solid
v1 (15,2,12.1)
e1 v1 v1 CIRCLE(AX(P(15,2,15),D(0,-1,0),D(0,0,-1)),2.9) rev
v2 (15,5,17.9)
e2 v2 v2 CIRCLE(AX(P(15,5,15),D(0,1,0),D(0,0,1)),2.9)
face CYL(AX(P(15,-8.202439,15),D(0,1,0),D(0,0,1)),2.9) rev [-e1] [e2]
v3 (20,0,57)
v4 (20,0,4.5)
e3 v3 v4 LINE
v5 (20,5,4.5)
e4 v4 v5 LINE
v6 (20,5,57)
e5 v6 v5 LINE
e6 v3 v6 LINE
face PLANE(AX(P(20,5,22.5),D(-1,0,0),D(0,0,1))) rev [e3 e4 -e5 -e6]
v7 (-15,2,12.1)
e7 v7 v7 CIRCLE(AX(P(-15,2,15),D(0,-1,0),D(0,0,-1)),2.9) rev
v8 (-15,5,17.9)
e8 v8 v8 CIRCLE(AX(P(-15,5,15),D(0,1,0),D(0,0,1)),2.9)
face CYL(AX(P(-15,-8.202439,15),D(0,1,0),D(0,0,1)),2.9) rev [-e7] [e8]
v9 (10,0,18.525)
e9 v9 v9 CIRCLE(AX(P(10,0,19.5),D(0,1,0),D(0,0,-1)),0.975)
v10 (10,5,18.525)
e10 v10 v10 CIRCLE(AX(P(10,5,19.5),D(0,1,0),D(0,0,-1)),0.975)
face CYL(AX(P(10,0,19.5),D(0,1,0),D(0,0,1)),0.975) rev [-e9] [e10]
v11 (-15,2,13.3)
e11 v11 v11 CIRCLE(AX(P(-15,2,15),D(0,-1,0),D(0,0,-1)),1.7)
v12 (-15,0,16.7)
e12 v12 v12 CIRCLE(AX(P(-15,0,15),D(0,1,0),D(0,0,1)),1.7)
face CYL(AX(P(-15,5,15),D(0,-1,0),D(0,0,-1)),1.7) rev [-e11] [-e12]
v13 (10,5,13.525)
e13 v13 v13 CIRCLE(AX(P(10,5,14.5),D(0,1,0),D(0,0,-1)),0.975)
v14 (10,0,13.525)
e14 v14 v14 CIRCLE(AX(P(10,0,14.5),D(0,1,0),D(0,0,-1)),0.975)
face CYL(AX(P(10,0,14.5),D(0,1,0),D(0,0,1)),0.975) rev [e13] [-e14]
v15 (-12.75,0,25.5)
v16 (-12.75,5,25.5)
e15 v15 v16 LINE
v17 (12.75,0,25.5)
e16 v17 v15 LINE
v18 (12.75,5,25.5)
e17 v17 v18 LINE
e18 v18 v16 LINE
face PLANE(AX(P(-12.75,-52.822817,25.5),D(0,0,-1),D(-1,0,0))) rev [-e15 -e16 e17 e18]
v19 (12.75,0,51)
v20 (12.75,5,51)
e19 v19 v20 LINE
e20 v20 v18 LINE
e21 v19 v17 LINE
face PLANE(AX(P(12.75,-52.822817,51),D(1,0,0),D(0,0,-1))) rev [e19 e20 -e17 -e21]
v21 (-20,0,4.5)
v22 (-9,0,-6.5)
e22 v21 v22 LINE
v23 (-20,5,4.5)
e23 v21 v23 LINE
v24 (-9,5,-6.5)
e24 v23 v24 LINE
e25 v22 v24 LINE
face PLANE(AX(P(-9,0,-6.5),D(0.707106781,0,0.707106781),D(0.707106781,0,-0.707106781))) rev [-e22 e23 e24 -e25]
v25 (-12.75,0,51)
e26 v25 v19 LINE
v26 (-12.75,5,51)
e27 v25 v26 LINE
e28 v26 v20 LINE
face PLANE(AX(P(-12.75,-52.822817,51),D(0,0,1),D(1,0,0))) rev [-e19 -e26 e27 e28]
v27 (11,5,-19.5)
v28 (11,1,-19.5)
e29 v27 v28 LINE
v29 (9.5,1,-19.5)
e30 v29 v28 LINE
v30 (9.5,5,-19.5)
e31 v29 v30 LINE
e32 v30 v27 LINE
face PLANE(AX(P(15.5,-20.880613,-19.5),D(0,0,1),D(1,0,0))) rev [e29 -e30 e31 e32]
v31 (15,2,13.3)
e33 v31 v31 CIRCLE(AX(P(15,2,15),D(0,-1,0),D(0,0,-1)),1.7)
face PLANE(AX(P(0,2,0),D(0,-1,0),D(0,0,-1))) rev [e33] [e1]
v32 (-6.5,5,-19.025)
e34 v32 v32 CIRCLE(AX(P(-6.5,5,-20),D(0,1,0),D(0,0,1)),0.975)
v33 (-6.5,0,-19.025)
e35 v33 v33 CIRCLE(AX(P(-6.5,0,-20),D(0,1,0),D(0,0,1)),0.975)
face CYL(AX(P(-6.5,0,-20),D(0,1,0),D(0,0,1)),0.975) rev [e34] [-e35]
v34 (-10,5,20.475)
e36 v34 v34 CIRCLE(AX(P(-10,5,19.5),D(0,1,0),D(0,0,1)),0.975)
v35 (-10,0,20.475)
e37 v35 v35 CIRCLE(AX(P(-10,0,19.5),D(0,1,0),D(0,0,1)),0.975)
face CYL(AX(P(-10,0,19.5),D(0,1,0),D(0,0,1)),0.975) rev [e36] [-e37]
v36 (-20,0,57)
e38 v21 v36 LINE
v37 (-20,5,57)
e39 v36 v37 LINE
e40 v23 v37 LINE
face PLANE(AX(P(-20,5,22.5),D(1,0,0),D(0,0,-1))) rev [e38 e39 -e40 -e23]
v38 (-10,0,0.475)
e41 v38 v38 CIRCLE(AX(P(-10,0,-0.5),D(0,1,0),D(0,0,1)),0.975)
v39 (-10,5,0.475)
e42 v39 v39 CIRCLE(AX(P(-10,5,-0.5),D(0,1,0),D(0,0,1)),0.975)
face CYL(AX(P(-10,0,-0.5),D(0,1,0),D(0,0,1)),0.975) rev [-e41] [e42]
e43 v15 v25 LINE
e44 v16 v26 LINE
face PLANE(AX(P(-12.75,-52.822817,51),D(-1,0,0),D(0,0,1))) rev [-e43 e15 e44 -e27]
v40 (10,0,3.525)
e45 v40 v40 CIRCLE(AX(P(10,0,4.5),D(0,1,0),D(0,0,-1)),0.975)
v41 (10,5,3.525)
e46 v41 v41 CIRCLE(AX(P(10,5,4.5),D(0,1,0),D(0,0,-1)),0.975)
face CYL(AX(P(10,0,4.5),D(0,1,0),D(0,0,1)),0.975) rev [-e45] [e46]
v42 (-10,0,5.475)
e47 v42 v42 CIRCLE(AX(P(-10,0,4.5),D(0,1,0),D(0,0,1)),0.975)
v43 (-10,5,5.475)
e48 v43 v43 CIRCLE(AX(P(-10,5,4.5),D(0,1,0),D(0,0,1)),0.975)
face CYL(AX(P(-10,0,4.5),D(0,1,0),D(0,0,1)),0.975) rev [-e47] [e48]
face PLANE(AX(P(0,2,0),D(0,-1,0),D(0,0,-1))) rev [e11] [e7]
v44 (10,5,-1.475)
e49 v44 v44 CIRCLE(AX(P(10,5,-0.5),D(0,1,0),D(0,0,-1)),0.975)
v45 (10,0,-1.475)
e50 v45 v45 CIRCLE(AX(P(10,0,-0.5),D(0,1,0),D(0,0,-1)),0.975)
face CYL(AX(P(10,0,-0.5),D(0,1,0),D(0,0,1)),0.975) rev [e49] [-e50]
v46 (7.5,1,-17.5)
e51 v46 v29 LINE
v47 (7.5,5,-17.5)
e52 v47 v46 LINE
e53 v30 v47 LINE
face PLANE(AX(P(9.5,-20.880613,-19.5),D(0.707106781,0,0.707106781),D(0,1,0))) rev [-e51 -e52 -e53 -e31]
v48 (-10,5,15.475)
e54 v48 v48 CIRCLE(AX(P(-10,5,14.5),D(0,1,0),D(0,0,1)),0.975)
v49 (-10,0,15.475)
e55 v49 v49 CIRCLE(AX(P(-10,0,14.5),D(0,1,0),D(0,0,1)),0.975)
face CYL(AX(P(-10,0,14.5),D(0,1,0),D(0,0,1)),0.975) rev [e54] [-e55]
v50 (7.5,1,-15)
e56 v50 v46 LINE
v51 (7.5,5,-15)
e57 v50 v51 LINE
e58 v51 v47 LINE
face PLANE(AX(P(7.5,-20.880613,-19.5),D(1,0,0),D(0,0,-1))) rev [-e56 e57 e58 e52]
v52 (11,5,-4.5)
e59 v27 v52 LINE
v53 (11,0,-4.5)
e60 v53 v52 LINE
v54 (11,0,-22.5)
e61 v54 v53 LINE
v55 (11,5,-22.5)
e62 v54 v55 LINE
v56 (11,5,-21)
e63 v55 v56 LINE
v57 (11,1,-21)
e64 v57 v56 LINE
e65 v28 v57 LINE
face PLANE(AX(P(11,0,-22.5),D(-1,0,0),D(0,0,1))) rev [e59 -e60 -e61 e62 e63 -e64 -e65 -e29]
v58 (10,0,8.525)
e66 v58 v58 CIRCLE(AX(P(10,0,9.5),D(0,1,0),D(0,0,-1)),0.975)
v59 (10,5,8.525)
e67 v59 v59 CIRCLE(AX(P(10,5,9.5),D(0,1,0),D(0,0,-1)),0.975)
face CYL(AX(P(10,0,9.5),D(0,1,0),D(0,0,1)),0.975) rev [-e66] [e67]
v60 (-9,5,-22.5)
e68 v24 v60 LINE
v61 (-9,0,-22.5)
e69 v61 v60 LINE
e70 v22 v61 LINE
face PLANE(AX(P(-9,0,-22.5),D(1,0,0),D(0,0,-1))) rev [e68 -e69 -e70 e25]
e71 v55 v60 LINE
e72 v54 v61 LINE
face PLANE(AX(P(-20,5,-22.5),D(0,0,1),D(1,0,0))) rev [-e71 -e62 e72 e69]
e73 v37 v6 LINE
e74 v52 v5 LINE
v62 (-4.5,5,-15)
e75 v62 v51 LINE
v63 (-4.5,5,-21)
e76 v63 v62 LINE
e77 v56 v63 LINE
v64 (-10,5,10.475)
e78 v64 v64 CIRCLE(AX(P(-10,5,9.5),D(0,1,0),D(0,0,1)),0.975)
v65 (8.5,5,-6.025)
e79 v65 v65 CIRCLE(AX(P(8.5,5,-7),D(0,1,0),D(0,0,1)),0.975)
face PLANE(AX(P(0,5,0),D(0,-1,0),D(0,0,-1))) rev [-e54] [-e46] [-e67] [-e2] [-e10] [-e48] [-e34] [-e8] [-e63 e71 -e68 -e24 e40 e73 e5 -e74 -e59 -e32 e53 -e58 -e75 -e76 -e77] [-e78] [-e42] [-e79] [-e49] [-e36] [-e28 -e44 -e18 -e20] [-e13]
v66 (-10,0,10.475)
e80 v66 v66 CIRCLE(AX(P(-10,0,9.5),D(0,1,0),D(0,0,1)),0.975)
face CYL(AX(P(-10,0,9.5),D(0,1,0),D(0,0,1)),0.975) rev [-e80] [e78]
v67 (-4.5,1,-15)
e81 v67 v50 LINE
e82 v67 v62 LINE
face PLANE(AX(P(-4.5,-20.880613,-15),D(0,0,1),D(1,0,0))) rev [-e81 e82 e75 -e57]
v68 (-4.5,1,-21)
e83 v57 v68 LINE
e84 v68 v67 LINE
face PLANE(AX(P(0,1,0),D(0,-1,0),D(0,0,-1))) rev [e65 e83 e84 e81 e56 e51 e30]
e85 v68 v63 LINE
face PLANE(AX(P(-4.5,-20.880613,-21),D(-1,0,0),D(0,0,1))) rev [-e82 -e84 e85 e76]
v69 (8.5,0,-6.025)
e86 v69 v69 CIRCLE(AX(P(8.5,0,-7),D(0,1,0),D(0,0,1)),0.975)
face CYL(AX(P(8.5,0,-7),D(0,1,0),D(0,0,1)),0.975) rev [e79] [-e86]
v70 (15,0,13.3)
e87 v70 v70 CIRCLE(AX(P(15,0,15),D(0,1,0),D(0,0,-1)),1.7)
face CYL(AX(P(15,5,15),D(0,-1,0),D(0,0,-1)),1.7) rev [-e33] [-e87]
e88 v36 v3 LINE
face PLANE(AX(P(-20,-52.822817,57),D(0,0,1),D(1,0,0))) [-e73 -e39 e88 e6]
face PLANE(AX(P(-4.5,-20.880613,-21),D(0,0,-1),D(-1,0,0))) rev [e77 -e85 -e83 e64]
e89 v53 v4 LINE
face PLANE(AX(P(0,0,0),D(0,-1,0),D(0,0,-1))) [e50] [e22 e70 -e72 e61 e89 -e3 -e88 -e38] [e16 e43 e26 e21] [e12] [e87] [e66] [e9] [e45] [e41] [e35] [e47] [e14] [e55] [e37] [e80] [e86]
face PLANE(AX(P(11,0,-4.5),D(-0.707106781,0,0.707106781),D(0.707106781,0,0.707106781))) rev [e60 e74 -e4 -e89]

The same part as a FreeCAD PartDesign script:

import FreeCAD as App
import Part
import Sketcher

V = App.Vector


def edges_at(feature, points):
    """Names of the edges that pass closest to the given points."""
    edges = feature.Shape.Edges
    near = lambda p: min(range(len(edges)), key=lambda i: edges[i].distToShape(Part.Vertex(*p))[0])
    return sorted({f"Edge{near(p) + 1}" for p in points})


def add_polygon(sketch, points):
    """Adds a closed chain of lines whose ends are joined by coincident constraints."""
    first, n = sketch.GeometryCount, len(points)
    for a, b in zip(points, points[1:] + points[:1]):
        sketch.addGeometry(Part.LineSegment(App.Vector(*a, 0), App.Vector(*b, 0)), False)
    for i in range(n):
        sketch.addConstraint(Sketcher.Constraint("Coincident", first + i, 2, first + (i + 1) % n, 1))

doc = App.newDocument("Part")
params = doc.addObject("Spreadsheet::Sheet", "Params")
for row, (alias, value) in enumerate([
    ("sketch1_diameter", "3.4 mm"),
    ("sketch1_width", "40 mm"),
    ("sketch1_height", "45 mm"),
    ("pad1_length", "5 mm"),
    ("sketch2_diameter", "5.8 mm"),
    ("pocket1_length", "3 mm"),
    ("sketch3_diameter", "1.95 mm"),
    ("sketch4_diameter", "1.95 mm"),
    ("linearpattern_pitch", "5 mm"),
    ("sketch5_width", "20 mm"),
    ("sketch5_width2", "12 mm"),
    ("sketch5_height", "6 mm"),
    ("sketch5_height2", "4.5 mm"),
    ("pocket4_length", "4 mm"),
    ("fillet_radius", "3 mm"),
    ("chamfer_size", "2 mm"),
    ("sketch6_width", "11 mm"),
    ("sketch6_width2", "9 mm"),
    ("sketch6_height", "16 mm"),
    ("sketch6_height2", "27 mm"),
    ("sketch7_width", "40 mm"),
    ("sketch7_width2", "25.5 mm"),
    ("sketch7_height", "34.5 mm"),
    ("pad2_length", "5 mm"),
], start=1):
    params.set(f"A{row}", alias)
    params.set(f"B{row}", "=" + value)
    params.setAlias(f"B{row}", alias)

body = doc.addObject("PartDesign::Body", "Body")

# Sketch on XZ plane
sketch1 = doc.addObject("Sketcher::SketchObject", "Sketch")
body.addObject(sketch1)
sketch1.AttachmentSupport = (doc.XZ_Plane, [""])
sketch1.MapMode = "FlatFace"
add_polygon(sketch1, [(-20, -22.5), (-20, 22.5), (20, 22.5), (20, -22.5)])  # lines 0-3
sketch1.addGeometry(Part.Circle(V(-15, 15, 0), V(0, 0, 1), 1.7), False)  # 4
sketch1.addGeometry(Part.Circle(V(15, 15, 0), V(0, 0, 1), 1.7), False)  # 5
sketch1.addGeometry(Part.Circle(V(-15, -15, 0), V(0, 0, 1), 1.7), False)  # 6
sketch1.addGeometry(Part.Circle(V(15, -15, 0), V(0, 0, 1), 1.7), False)  # 7
sketch1.addConstraint([
    Sketcher.Constraint("Vertical", 0),
    Sketcher.Constraint("Horizontal", 1),
    Sketcher.Constraint("Vertical", 2),
    Sketcher.Constraint("Horizontal", 3),
    Sketcher.Constraint("Equal", 4, 5),
    Sketcher.Constraint("Equal", 5, 6),
    Sketcher.Constraint("Equal", 6, 7),
    Sketcher.Constraint("Symmetric", 5, 3, 6, 3, -1, 1),
    Sketcher.Constraint("Symmetric", 4, 3, 7, 3, -1, 1),
    Sketcher.Constraint("Symmetric", 0, 2, 2, 2, -1, 1),
    Sketcher.Constraint("Symmetric", 4, 3, 5, 3, -2),
    Sketcher.Constraint("Diameter", 4, 3.4),
    Sketcher.Constraint("DistanceX", 1, 1, 1, 2, 40.0),
    Sketcher.Constraint("DistanceY", 0, 1, 0, 2, 45.0),
    Sketcher.Constraint("DistanceX", 4, 3, -1, 1, 15.0),
    Sketcher.Constraint("DistanceY", -1, 1, 4, 3, 15.0),
])
sketch1.setExpression("Constraints[15]", "Params.sketch1_diameter")
sketch1.setExpression("Constraints[16]", "Params.sketch1_width")
sketch1.setExpression("Constraints[17]", "Params.sketch1_height")
pad1 = doc.addObject("PartDesign::Pad", "Pad")
body.addObject(pad1)
pad1.Profile = sketch1
pad1.setExpression("Length", "Params.pad1_length")
pad1.Reversed = True

# Sketch on XZ plane
sketch2 = doc.addObject("Sketcher::SketchObject", "Sketch001")
body.addObject(sketch2)
sketch2.AttachmentSupport = (doc.XZ_Plane, [""])
sketch2.MapMode = "FlatFace"
sketch2.AttachmentOffset = App.Placement(V(0, 0, -5), App.Rotation())
sketch2.addGeometry([
    Part.Circle(V(-15, -15, 0), V(0, 0, 1), 2.9),
    Part.Circle(V(15, -15, 0), V(0, 0, 1), 2.9),
    Part.Circle(V(-15, 15, 0), V(0, 0, 1), 2.9),
    Part.Circle(V(15, 15, 0), V(0, 0, 1), 2.9),
], False)
sketch2.addConstraint([
    Sketcher.Constraint("Equal", 0, 1),
    Sketcher.Constraint("Equal", 1, 2),
    Sketcher.Constraint("Equal", 2, 3),
    Sketcher.Constraint("Symmetric", 1, 3, 2, 3, -1, 1),
    Sketcher.Constraint("Symmetric", 0, 3, 3, 3, -1, 1),
    Sketcher.Constraint("Symmetric", 0, 3, 1, 3, -2),
    Sketcher.Constraint("Diameter", 0, 5.8),
    Sketcher.Constraint("DistanceX", 0, 3, -1, 1, 15.0),
    Sketcher.Constraint("DistanceY", 0, 3, -1, 1, 15.0),
])
sketch2.setExpression("Constraints[6]", "Params.sketch2_diameter")
pocket1 = doc.addObject("PartDesign::Pocket", "Pocket")
body.addObject(pocket1)
pocket1.Profile = sketch2
pocket1.setExpression("Length", "Params.pocket1_length")
pocket1.Reversed = True

# Sketch on XZ plane
sketch3 = doc.addObject("Sketcher::SketchObject", "Sketch002")
body.addObject(sketch3)
sketch3.AttachmentSupport = (doc.XZ_Plane, [""])
sketch3.MapMode = "FlatFace"
sketch3.AttachmentOffset = App.Placement(V(0, 0, -5), App.Rotation())
sketch3.addGeometry([
    Part.Circle(V(-6.5, -20, 0), V(0, 0, 1), 0.975),
    Part.Circle(V(8.5, -7, 0), V(0, 0, 1), 0.975),
], False)
sketch3.addConstraint([
    Sketcher.Constraint("Equal", 0, 1),
    Sketcher.Constraint("Diameter", 0, 1.95),
    Sketcher.Constraint("DistanceY", 0, 3, -1, 1, 20.0),
    Sketcher.Constraint("DistanceY", 1, 3, -1, 1, 7.0),
    Sketcher.Constraint("DistanceX", 0, 3, 1, 3, 15.0),
    Sketcher.Constraint("DistanceX", 0, 3, -1, 1, 6.5),
])
sketch3.setExpression("Constraints[1]", "Params.sketch3_diameter")
pocket2 = doc.addObject("PartDesign::Pocket", "Pocket001")
body.addObject(pocket2)
pocket2.Profile = sketch3
pocket2.Type = "ThroughAll"
pocket2.Reversed = True

# Sketch on XZ plane
sketch4 = doc.addObject("Sketcher::SketchObject", "Sketch003")
body.addObject(sketch4)
sketch4.AttachmentSupport = (doc.XZ_Plane, [""])
sketch4.MapMode = "FlatFace"
sketch4.AttachmentOffset = App.Placement(V(0, 0, -5), App.Rotation())
sketch4.addGeometry([
    Part.Circle(V(-10, 19.5, 0), V(0, 0, 1), 0.975),
    Part.Circle(V(10, 19.5, 0), V(0, 0, 1), 0.975),
], False)
sketch4.addConstraint([
    Sketcher.Constraint("Equal", 0, 1),
    Sketcher.Constraint("Symmetric", 0, 3, 1, 3, -2),
    Sketcher.Constraint("Diameter", 0, 1.95),
    Sketcher.Constraint("DistanceX", 0, 3, -1, 1, 10.0),
    Sketcher.Constraint("DistanceY", -1, 1, 0, 3, 19.5),
])
sketch4.setExpression("Constraints[2]", "Params.sketch4_diameter")
pocket3 = doc.addObject("PartDesign::Pocket", "Pocket002")
body.addObject(pocket3)
pocket3.Profile = sketch4
pocket3.Type = "ThroughAll"
pocket3.Reversed = True
doc.recompute()

linearpattern = doc.addObject("PartDesign::LinearPattern", "LinearPattern")
body.addObject(linearpattern)
linearpattern.Originals = [pocket3]
linearpattern.Direction = (doc.Z_Axis, [""])
linearpattern.Mode = "offset"
linearpattern.setExpression("Offset", "Params.linearpattern_pitch")
linearpattern.Occurrences = 5
linearpattern.Reversed = True
body.Tip = linearpattern

# Sketch on XZ plane
sketch5 = doc.addObject("Sketcher::SketchObject", "Sketch004")
body.addObject(sketch5)
sketch5.AttachmentSupport = (doc.XZ_Plane, [""])
sketch5.MapMode = "FlatFace"
sketch5.AttachmentOffset = App.Placement(V(0, 0, -5), App.Rotation())
add_polygon(sketch5, [(15.5, -21), (-4.5, -21), (-4.5, -15), (7.5, -15), (7.5, -19.5), (15.5, -19.5)])  # lines 0-5
sketch5.addConstraint([
    Sketcher.Constraint("Horizontal", 0),
    Sketcher.Constraint("Vertical", 1),
    Sketcher.Constraint("Horizontal", 2),
    Sketcher.Constraint("Vertical", 3),
    Sketcher.Constraint("Horizontal", 4),
    Sketcher.Constraint("Vertical", 5),
    Sketcher.Constraint("DistanceX", 0, 2, 0, 1, 20.0),
    Sketcher.Constraint("DistanceX", 2, 1, 2, 2, 12.0),
    Sketcher.Constraint("DistanceY", 1, 1, 1, 2, 6.0),
    Sketcher.Constraint("DistanceY", 3, 2, 3, 1, 4.5),
    Sketcher.Constraint("DistanceY", 0, 2, -1, 1, 21.0),
    Sketcher.Constraint("DistanceX", 0, 2, -1, 1, 4.5),
])
sketch5.setExpression("Constraints[12]", "Params.sketch5_width")
sketch5.setExpression("Constraints[13]", "Params.sketch5_width2")
sketch5.setExpression("Constraints[14]", "Params.sketch5_height")
sketch5.setExpression("Constraints[15]", "Params.sketch5_height2")
pocket4 = doc.addObject("PartDesign::Pocket", "Pocket003")
body.addObject(pocket4)
pocket4.Profile = sketch5
pocket4.setExpression("Length", "Params.pocket4_length")
pocket4.Reversed = True
doc.recompute()

fillet = doc.addObject("PartDesign::Fillet", "Fillet")
body.addObject(fillet)
fillet.Base = (pocket4, edges_at(pocket4, [(15.5, 1, -20.25)]))
fillet.setExpression("Radius", "Params.fillet_radius")
doc.recompute()

chamfer = doc.addObject("PartDesign::Chamfer", "Chamfer")
body.addObject(chamfer)
chamfer.Base = (fillet, edges_at(fillet, [(7.5, 3, -19.5)]))
chamfer.setExpression("Size", "Params.chamfer_size")

# Sketch on XZ plane
sketch6 = doc.addObject("Sketcher::SketchObject", "Sketch005")
body.addObject(sketch6)
sketch6.AttachmentSupport = (doc.XZ_Plane, [""])
sketch6.MapMode = "FlatFace"
sketch6.AttachmentOffset = App.Placement(V(0, 0, -5), App.Rotation())
add_polygon(sketch6, [(-9, -6.5), (-9, -22.5), (-20, -22.5), (-20, 4.5)])  # lines 0-3
add_polygon(sketch6, [(20, -22.5), (11, -22.5), (11, -4.5), (20, 4.5)])  # lines 4-7
sketch6.addConstraint([
    Sketcher.Constraint("Vertical", 0),
    Sketcher.Constraint("Horizontal", 1),
    Sketcher.Constraint("Vertical", 2),
    Sketcher.Constraint("Horizontal", 4),
    Sketcher.Constraint("Vertical", 5),
    Sketcher.Constraint("Vertical", 7),
    Sketcher.Constraint("Symmetric", 2, 2, 6, 2, -2),
    Sketcher.Constraint("Perpendicular", 3, 6),
    Sketcher.Constraint("Horizontal", 1, 2, 4, 2),
    Sketcher.Constraint("DistanceX", 1, 2, 1, 1, 11.0),
    Sketcher.Constraint("DistanceX", 4, 2, 4, 1, 9.0),
    Sketcher.Constraint("DistanceY", 0, 2, 0, 1, 16.0),
    Sketcher.Constraint("DistanceY", 2, 1, 2, 2, 27.0),
    Sketcher.Constraint("DistanceX", 0, 2, -1, 1, 9.0),
    Sketcher.Constraint("DistanceY", 0, 2, -1, 1, 22.5),
])
sketch6.setExpression("Constraints[17]", "Params.sketch6_width")
sketch6.setExpression("Constraints[18]", "Params.sketch6_width2")
sketch6.setExpression("Constraints[19]", "Params.sketch6_height")
sketch6.setExpression("Constraints[20]", "Params.sketch6_height2")
pocket5 = doc.addObject("PartDesign::Pocket", "Pocket004")
body.addObject(pocket5)
pocket5.Profile = sketch6
pocket5.Type = "ThroughAll"
pocket5.Reversed = True

# Sketch on XZ plane
sketch7 = doc.addObject("Sketcher::SketchObject", "Sketch006")
body.addObject(sketch7)
sketch7.AttachmentSupport = (doc.XZ_Plane, [""])
sketch7.MapMode = "FlatFace"
sketch7.AttachmentOffset = App.Placement(V(0, 0, -5), App.Rotation())
add_polygon(sketch7, [(-20, 22.5), (-20, 57), (20, 57), (20, 22.5)])  # lines 0-3
add_polygon(sketch7, [(12.75, 51), (-12.75, 51), (-12.75, 25.5), (12.75, 25.5)])  # lines 4-7
sketch7.addConstraint([
    Sketcher.Constraint("Vertical", 0),
    Sketcher.Constraint("Horizontal", 1),
    Sketcher.Constraint("Vertical", 2),
    Sketcher.Constraint("Horizontal", 3),
    Sketcher.Constraint("Horizontal", 4),
    Sketcher.Constraint("Vertical", 5),
    Sketcher.Constraint("Horizontal", 6),
    Sketcher.Constraint("Vertical", 7),
    Sketcher.Constraint("Equal", 6, 5),
    Sketcher.Constraint("DistanceX", 1, 1, 1, 2, 40.0),
    Sketcher.Constraint("DistanceX", 4, 2, 4, 1, 25.5),
    Sketcher.Constraint("DistanceY", 0, 1, 0, 2, 34.5),
    Sketcher.Constraint("DistanceX", 0, 2, -1, 1, 20.0),
    Sketcher.Constraint("DistanceY", -1, 1, 0, 2, 57.0),
    Sketcher.Constraint("DistanceY", -1, 1, 4, 2, 51.0),
    Sketcher.Constraint("DistanceX", 4, 2, -1, 1, 12.75),
])
sketch7.setExpression("Constraints[17]", "Params.sketch7_width")
sketch7.setExpression("Constraints[18]", "Params.sketch7_width2")
sketch7.setExpression("Constraints[19]", "Params.sketch7_height")
pad2 = doc.addObject("PartDesign::Pad", "Pad001")
body.addObject(pad2)
pad2.Profile = sketch7
pad2.setExpression("Length", "Params.pad2_length")

doc.recompute()
